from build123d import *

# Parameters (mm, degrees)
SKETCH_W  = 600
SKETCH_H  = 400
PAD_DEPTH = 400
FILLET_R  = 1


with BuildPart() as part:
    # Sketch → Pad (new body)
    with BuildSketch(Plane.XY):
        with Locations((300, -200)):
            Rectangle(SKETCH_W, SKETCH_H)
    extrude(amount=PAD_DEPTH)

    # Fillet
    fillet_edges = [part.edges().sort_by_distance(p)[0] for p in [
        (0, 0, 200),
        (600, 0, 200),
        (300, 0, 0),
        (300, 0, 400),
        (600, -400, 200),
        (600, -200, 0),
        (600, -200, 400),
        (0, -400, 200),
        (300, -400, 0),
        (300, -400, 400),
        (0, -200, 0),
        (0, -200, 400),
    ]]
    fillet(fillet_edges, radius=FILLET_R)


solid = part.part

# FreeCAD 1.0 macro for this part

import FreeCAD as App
import Part
import Sketcher


def add_polygon(sketch, points):
    """Adds a closed chain of lines whose ends are joined by coincident constraints."""
    first, n = sketch.GeometryCount, len(points)
    for a, b in zip(points, points[1:] + points[:1]):
        sketch.addGeometry(Part.LineSegment(App.Vector(*a, 0), App.Vector(*b, 0)), False)
    for i in range(n):
        sketch.addConstraint(Sketcher.Constraint("Coincident", first + i, 2, first + (i + 1) % n, 1))

doc = App.newDocument("Part")
body = doc.addObject("PartDesign::Body", "Body")

sketch1 = doc.addObject("Sketcher::SketchObject", "Sketch")
body.addObject(sketch1)
sketch1.AttachmentSupport = (doc.XY_Plane, [""])
sketch1.MapMode = "FlatFace"
add_polygon(sketch1, [(0, 0), (0, -400), (600, -400), (600, 0)])
sketch1.addConstraint([
    Sketcher.Constraint("Vertical", 0),
    Sketcher.Constraint("Horizontal", 1),
    Sketcher.Constraint("Vertical", 2),
    Sketcher.Constraint("Horizontal", 3),
    Sketcher.Constraint("Coincident", 3, 2, -1, 1),
    Sketcher.Constraint("DistanceX", 1, 1, 1, 2, 600.0),
    Sketcher.Constraint("DistanceY", 0, 2, 0, 1, 400.0),
])
pad1 = doc.addObject("PartDesign::Pad", "Pad")
body.addObject(pad1)
pad1.Profile = sketch1
pad1.Length = 400
doc.recompute()

fillet = doc.addObject("PartDesign::Fillet", "Fillet")
body.addObject(fillet)
fillet.Base = (pad1, ["Edge1"])
fillet.UseAllEdges = True
fillet.Radius = 1

doc.recompute()
